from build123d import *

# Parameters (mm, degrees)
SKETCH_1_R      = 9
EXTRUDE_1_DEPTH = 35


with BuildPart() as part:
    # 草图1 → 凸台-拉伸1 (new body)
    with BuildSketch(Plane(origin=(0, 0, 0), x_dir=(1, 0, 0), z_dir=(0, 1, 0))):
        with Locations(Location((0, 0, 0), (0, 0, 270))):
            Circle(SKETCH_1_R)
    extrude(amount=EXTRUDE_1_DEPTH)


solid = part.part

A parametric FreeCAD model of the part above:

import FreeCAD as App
import Part
import Sketcher

V = App.Vector

doc = App.newDocument("Part")
params = doc.addObject("Spreadsheet::Sheet", "Params")
for row, (alias, value) in enumerate([
    ("sketch1_diameter", "18 mm"),
    ("pad1_length", "35 mm"),
], start=1):
    params.set(f"A{row}", alias)
    params.set(f"B{row}", "=" + value)
    params.setAlias(f"B{row}", alias)

body = doc.addObject("PartDesign::Body", "Body")

sketch1 = doc.addObject("Sketcher::SketchObject", "Sketch")
body.addObject(sketch1)
sketch1.AttachmentSupport = (doc.XZ_Plane, [""])
sketch1.MapMode = "FlatFace"
sketch1.addGeometry(Part.Circle(V(0, 0, 0), V(0, 0, 1), 9), False)
sketch1.addConstraint([
    Sketcher.Constraint("Coincident", 0, 3, -1, 1),
    Sketcher.Constraint("Diameter", 0, 18.0),
])
sketch1.setExpression("Constraints[1]", "Params.sketch1_diameter")
pad1 = doc.addObject("PartDesign::Pad", "Pad")
body.addObject(pad1)
pad1.Profile = sketch1
pad1.setExpression("Length", "Params.pad1_length")
pad1.Reversed = True

doc.recompute()
